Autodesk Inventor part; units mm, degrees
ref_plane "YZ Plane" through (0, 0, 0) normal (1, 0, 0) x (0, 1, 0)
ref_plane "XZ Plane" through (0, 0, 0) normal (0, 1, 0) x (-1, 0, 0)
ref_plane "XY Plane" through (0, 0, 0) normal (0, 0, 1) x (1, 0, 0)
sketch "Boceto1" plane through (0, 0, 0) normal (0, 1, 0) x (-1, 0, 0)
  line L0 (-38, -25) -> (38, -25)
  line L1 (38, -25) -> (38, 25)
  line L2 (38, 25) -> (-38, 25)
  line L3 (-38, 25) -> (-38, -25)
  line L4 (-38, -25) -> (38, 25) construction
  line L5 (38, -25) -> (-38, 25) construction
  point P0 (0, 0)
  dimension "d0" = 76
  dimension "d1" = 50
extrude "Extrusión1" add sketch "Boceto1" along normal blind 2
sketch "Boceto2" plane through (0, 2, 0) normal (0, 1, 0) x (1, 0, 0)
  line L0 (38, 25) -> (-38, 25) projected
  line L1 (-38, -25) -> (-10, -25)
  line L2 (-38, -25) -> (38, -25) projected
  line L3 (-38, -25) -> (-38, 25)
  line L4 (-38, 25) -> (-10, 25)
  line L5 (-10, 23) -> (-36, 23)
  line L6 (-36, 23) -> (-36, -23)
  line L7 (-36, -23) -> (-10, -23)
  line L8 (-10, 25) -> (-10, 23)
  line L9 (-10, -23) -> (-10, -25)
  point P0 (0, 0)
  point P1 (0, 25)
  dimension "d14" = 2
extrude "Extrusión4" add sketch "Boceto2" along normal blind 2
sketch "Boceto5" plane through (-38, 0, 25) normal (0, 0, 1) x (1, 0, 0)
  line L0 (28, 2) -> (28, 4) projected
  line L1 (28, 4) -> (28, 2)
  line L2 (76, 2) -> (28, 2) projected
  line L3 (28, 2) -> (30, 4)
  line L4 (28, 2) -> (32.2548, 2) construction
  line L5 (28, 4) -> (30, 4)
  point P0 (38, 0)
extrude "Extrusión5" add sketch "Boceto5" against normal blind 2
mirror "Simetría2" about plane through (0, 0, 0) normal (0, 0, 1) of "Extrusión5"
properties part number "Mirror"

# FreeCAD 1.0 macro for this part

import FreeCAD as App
import Part
import Sketcher
from FreeCAD import Vector
Q = App.Units.Quantity

doc = App.newDocument("Part")
params = doc.addObject("Spreadsheet::Sheet", "Params")
for row, (alias, value) in enumerate([
    ("sketch1_width", "76 mm"),
    ("sketch1_height", "50 mm"),
    ("pad1_length", "2 mm"),
    ("sketch2_height", "2 mm"),
    ("sketch2_width", "28 mm"),
    ("sketch2_height2", "50 mm"),
    ("pad2_length", "2 mm"),
    ("sketch3_width", "2 mm"),
    ("pad3_length", "2 mm"),
], start=1):
    params.set(f"A{row}", alias)
    params.set(f"B{row}", "=" + value)
    params.setAlias(f"B{row}", alias)

body = doc.addObject("PartDesign::Body", "Body")

sketch1 = body.newObject("Sketcher::SketchObject", "Sketch")
sketch1.AttachmentSupport = (doc.getObject("XZ_Plane"), [""])
sketch1.MapMode = "FlatFace"
sketch1.addGeometry([
    Part.LineSegment(Vector(38, 25, 0), Vector(38, -25, 0)),
    Part.LineSegment(Vector(38, -25, 0), Vector(-38, -25, 0)),
    Part.LineSegment(Vector(-38, -25, 0), Vector(-38, 25, 0)),
    Part.LineSegment(Vector(-38, 25, 0), Vector(38, 25, 0)),
], False)
sketch1.addConstraint([
    Sketcher.Constraint("Coincident", 0, 2, 1, 1),
    Sketcher.Constraint("Coincident", 1, 2, 2, 1),
    Sketcher.Constraint("Coincident", 2, 2, 3, 1),
    Sketcher.Constraint("Coincident", 3, 2, 0, 1),
    Sketcher.Constraint("Vertical", 0),
    Sketcher.Constraint("Horizontal", 1),
    Sketcher.Constraint("Vertical", 2),
    Sketcher.Constraint("Horizontal", 3),
    Sketcher.Constraint("Symmetric", 0, 2, 2, 2, -1, 1),
    Sketcher.Constraint("DistanceX", 1, 2, 1, 1, Q("76 mm")),
    Sketcher.Constraint("DistanceY", 0, 2, 0, 1, Q("50 mm")),
])
sketch1.setExpression("Constraints[9]", "Params.sketch1_width")
sketch1.setExpression("Constraints[10]", "Params.sketch1_height")
pad1 = body.newObject("PartDesign::Pad", "Pad")
pad1.Profile = sketch1
pad1.setExpression("Length", "Params.pad1_length")
pad1.Reversed = True

sketch2 = body.newObject("Sketcher::SketchObject", "Sketch001")
sketch2.AttachmentSupport = (doc.getObject("XZ_Plane"), [""])
sketch2.MapMode = "FlatFace"
sketch2.AttachmentOffset = App.Placement(Vector(0, 0, -2), App.Rotation())
sketch2.addGeometry([
    Part.LineSegment(Vector(-10, -23, 0), Vector(-10, -25, 0)),
    Part.LineSegment(Vector(-10, -25, 0), Vector(-38, -25, 0)),
    Part.LineSegment(Vector(-38, -25, 0), Vector(-38, 25, 0)),
    Part.LineSegment(Vector(-38, 25, 0), Vector(-10, 25, 0)),
    Part.LineSegment(Vector(-10, 25, 0), Vector(-10, 23, 0)),
    Part.LineSegment(Vector(-10, 23, 0), Vector(-36, 23, 0)),
    Part.LineSegment(Vector(-36, 23, 0), Vector(-36, -23, 0)),
    Part.LineSegment(Vector(-36, -23, 0), Vector(-10, -23, 0)),
], False)
sketch2.addConstraint([
    Sketcher.Constraint("Coincident", 0, 2, 1, 1),
    Sketcher.Constraint("Coincident", 1, 2, 2, 1),
    Sketcher.Constraint("Coincident", 2, 2, 3, 1),
    Sketcher.Constraint("Coincident", 3, 2, 4, 1),
    Sketcher.Constraint("Coincident", 4, 2, 5, 1),
    Sketcher.Constraint("Coincident", 5, 2, 6, 1),
    Sketcher.Constraint("Coincident", 6, 2, 7, 1),
    Sketcher.Constraint("Coincident", 7, 2, 0, 1),
    Sketcher.Constraint("Vertical", 0),
    Sketcher.Constraint("Horizontal", 1),
    Sketcher.Constraint("Vertical", 2),
    Sketcher.Constraint("Horizontal", 3),
    Sketcher.Constraint("Vertical", 4),
    Sketcher.Constraint("Horizontal", 5),
    Sketcher.Constraint("Vertical", 6),
    Sketcher.Constraint("Horizontal", 7),
    Sketcher.Constraint("Symmetric", 0, 2, 3, 2, -1),
    Sketcher.Constraint("Equal", 0, 4),
    Sketcher.Constraint("DistanceY", 0, 2, 0, 1, Q("2 mm")),
    Sketcher.Constraint("DistanceX", 2, 2, 5, 2, Q("2 mm")),
    Sketcher.Constraint("DistanceX", 1, 2, 1, 1, Q("28 mm")),
    Sketcher.Constraint("DistanceY", 2, 1, 2, 2, Q("50 mm")),
    Sketcher.Constraint("DistanceX", 0, 2, -1, 1, Q("10 mm")),
])
sketch2.setExpression("Constraints[18]", "Params.sketch2_height")
sketch2.setExpression("Constraints[20]", "Params.sketch2_width")
sketch2.setExpression("Constraints[21]", "Params.sketch2_height2")
pad2 = body.newObject("PartDesign::Pad", "Pad001")
pad2.Profile = sketch2
pad2.setExpression("Length", "Params.pad2_length")
pad2.Reversed = True

sketch3 = body.newObject("Sketcher::SketchObject", "Sketch002")
sketch3.AttachmentSupport = (doc.getObject("XY_Plane"), [""])
sketch3.MapMode = "FlatFace"
sketch3.AttachmentOffset = App.Placement(Vector(0, 0, 25), App.Rotation())
sketch3.addGeometry([
    Part.LineSegment(Vector(-10, 4, 0), Vector(-10, 2, 0)),
    Part.LineSegment(Vector(-10, 2, 0), Vector(-8, 4, 0)),
    Part.LineSegment(Vector(-8, 4, 0), Vector(-10, 4, 0)),
], False)
sketch3.addConstraint([
    Sketcher.Constraint("Coincident", 0, 2, 1, 1),
    Sketcher.Constraint("Coincident", 1, 2, 2, 1),
    Sketcher.Constraint("Coincident", 2, 2, 0, 1),
    Sketcher.Constraint("Vertical", 0),
    Sketcher.Constraint("Horizontal", 2),
    Sketcher.Constraint("Equal", 2, 0),
    Sketcher.Constraint("DistanceX", 2, 2, 2, 1, Q("2 mm")),
    Sketcher.Constraint("DistanceX", 0, 2, -1, 1, Q("10 mm")),
    Sketcher.Constraint("DistanceY", -1, 1, 0, 2, Q("2 mm")),
])
sketch3.setExpression("Constraints[6]", "Params.sketch3_width")
pad3 = body.newObject("PartDesign::Pad", "Pad002")
pad3.Profile = sketch3
pad3.setExpression("Length", "Params.pad3_length")
pad3.Reversed = True
doc.recompute()

mirrored = body.newObject("PartDesign::Mirrored", "Mirrored")
mirrored.Originals = [pad3]
mirrored.MirrorPlane = (doc.getObject("XY_Plane"), [""])
body.Tip = mirrored

doc.recompute()
